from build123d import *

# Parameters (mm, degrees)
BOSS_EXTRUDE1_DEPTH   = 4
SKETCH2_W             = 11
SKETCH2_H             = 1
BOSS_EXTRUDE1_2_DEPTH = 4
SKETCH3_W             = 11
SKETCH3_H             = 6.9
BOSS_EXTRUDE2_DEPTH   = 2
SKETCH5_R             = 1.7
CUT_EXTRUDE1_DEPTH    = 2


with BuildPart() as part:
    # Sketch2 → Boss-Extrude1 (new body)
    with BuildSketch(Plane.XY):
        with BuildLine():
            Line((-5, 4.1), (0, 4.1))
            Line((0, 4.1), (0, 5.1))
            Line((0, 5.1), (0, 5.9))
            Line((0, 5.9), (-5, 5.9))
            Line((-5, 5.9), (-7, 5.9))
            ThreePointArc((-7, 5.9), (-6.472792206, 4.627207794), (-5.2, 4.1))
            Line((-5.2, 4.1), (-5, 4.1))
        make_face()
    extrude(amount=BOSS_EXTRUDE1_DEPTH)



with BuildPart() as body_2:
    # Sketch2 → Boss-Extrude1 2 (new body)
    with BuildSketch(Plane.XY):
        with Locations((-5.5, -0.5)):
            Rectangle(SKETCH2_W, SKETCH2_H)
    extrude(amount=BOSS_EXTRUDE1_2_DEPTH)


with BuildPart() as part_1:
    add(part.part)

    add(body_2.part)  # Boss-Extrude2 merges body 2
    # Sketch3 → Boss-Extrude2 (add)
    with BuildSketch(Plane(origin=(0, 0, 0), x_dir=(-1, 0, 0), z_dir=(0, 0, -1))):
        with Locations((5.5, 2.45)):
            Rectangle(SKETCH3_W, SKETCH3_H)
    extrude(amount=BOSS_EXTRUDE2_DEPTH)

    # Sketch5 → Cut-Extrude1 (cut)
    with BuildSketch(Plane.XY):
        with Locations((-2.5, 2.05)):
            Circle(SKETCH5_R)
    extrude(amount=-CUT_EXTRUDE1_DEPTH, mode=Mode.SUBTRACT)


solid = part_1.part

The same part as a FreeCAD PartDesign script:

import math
import FreeCAD as App
import Part
import Sketcher
from FreeCAD import Vector

doc = App.newDocument("Part")
body = doc.addObject("PartDesign::Body", "Body")

# Sketch on XY plane
sketch1 = body.newObject("Sketcher::SketchObject", "Sketch")
sketch1.AttachmentSupport = (doc.getObject("XY_Plane"), [""])
sketch1.MapMode = "FlatFace"
sketch1.addGeometry(Part.LineSegment(Vector(0, 4.1, 0), Vector(0, 5.9, 0)), False)
sketch1.addGeometry(Part.LineSegment(Vector(0, 5.9, 0), Vector(-7, 5.9, 0)), False)
sketch1.addGeometry(Part.ArcOfCircle(Part.Circle(Vector(-5.2, 5.9, 0), Vector(0, 0, 1), 1.8), math.radians(180), math.radians(270)), False)
sketch1.addGeometry(Part.LineSegment(Vector(-5.2, 4.1, 0), Vector(0, 4.1, 0)), False)
sketch1.addConstraint(Sketcher.Constraint("Coincident", 0, 2, 1, 1))
sketch1.addConstraint(Sketcher.Constraint("Coincident", 1, 2, 2, 1))
sketch1.addConstraint(Sketcher.Constraint("Tangent", 2, 2, 3, 1))
sketch1.addConstraint(Sketcher.Constraint("Coincident", 3, 2, 0, 1))
sketch1.addConstraint(Sketcher.Constraint("Vertical", 0))
sketch1.addConstraint(Sketcher.Constraint("Horizontal", 1))
sketch1.addConstraint(Sketcher.Constraint("Horizontal", 3))
sketch1.addConstraint(Sketcher.Constraint("PointOnObject", 0, 2, -2))
sketch1.addConstraint(Sketcher.Constraint("Horizontal", 2, 3, 0, 2))
sketch1.addConstraint(Sketcher.Constraint("Radius", 2, 1.8))
sketch1.addConstraint(Sketcher.Constraint("DistanceX", 1, 2, 1, 1, 7.0))
sketch1.addConstraint(Sketcher.Constraint("DistanceY", -1, 1, 2, 3, 5.9))
pad1 = body.newObject("PartDesign::Pad", "Pad")
pad1.Profile = sketch1
pad1.Length = 4
body2 = doc.addObject("PartDesign::Body", "Body001")

# Sketch on XY plane
sketch2 = body2.newObject("Sketcher::SketchObject", "Sketch001")
sketch2.AttachmentSupport = (doc.getObject("XY_Plane001"), [""])
sketch2.MapMode = "FlatFace"
sketch2.addGeometry(Part.LineSegment(Vector(-11, 0, 0), Vector(-11, -1, 0)), False)
sketch2.addGeometry(Part.LineSegment(Vector(-11, -1, 0), Vector(0, -1, 0)), False)
sketch2.addGeometry(Part.LineSegment(Vector(0, -1, 0), Vector(0, 0, 0)), False)
sketch2.addGeometry(Part.LineSegment(Vector(0, 0, 0), Vector(-11, 0, 0)), False)
sketch2.addConstraint(Sketcher.Constraint("Coincident", 0, 2, 1, 1))
sketch2.addConstraint(Sketcher.Constraint("Coincident", 1, 2, 2, 1))
sketch2.addConstraint(Sketcher.Constraint("Coincident", 2, 2, 3, 1))
sketch2.addConstraint(Sketcher.Constraint("Coincident", 3, 2, 0, 1))
sketch2.addConstraint(Sketcher.Constraint("Vertical", 0))
sketch2.addConstraint(Sketcher.Constraint("Horizontal", 1))
sketch2.addConstraint(Sketcher.Constraint("Vertical", 2))
sketch2.addConstraint(Sketcher.Constraint("Horizontal", 3))
sketch2.addConstraint(Sketcher.Constraint("Coincident", 2, 2, -1, 1))
sketch2.addConstraint(Sketcher.Constraint("DistanceX", 1, 1, 1, 2, 11.0))
sketch2.addConstraint(Sketcher.Constraint("DistanceY", 0, 2, 0, 1, 1.0))
pad2 = body2.newObject("PartDesign::Pad", "Pad001")
pad2.Profile = sketch2
pad2.Length = 4
body.AllowCompound = True
doc.recompute()

boolean = body.newObject("PartDesign::Boolean", "Boolean")
boolean.Type = "Fuse"
boolean.addObjects([body2])

# Sketch on XY plane
sketch3 = body.newObject("Sketcher::SketchObject", "Sketch002")
sketch3.AttachmentSupport = (doc.getObject("XY_Plane"), [""])
sketch3.MapMode = "FlatFace"
sketch3.addGeometry(Part.LineSegment(Vector(0, 5.9, 0), Vector(0, -1, 0)), False)
sketch3.addGeometry(Part.LineSegment(Vector(0, -1, 0), Vector(-11, -1, 0)), False)
sketch3.addGeometry(Part.LineSegment(Vector(-11, -1, 0), Vector(-11, 5.9, 0)), False)
sketch3.addGeometry(Part.LineSegment(Vector(-11, 5.9, 0), Vector(0, 5.9, 0)), False)
sketch3.addConstraint(Sketcher.Constraint("Coincident", 0, 2, 1, 1))
sketch3.addConstraint(Sketcher.Constraint("Coincident", 1, 2, 2, 1))
sketch3.addConstraint(Sketcher.Constraint("Coincident", 2, 2, 3, 1))
sketch3.addConstraint(Sketcher.Constraint("Coincident", 3, 2, 0, 1))
sketch3.addConstraint(Sketcher.Constraint("Vertical", 0))
sketch3.addConstraint(Sketcher.Constraint("Horizontal", 1))
sketch3.addConstraint(Sketcher.Constraint("Vertical", 2))
sketch3.addConstraint(Sketcher.Constraint("Horizontal", 3))
sketch3.addConstraint(Sketcher.Constraint("PointOnObject", 0, 2, -2))
sketch3.addConstraint(Sketcher.Constraint("DistanceX", 1, 2, 1, 1, 11.0))
sketch3.addConstraint(Sketcher.Constraint("DistanceY", 0, 2, 0, 1, 6.9))
sketch3.addConstraint(Sketcher.Constraint("DistanceY", 0, 2, -1, 1, 1.0))
pad3 = body.newObject("PartDesign::Pad", "Pad002")
pad3.Profile = sketch3
pad3.Length = 2
pad3.Reversed = True

# Sketch on XY plane
sketch4 = body.newObject("Sketcher::SketchObject", "Sketch003")
sketch4.AttachmentSupport = (doc.getObject("XY_Plane"), [""])
sketch4.MapMode = "FlatFace"
sketch4.addGeometry(Part.Circle(Vector(-2.5, 2.05, 0), Vector(0, 0, 1), 1.7), False)
sketch4.addConstraint(Sketcher.Constraint("Diameter", 0, 3.4))
sketch4.addConstraint(Sketcher.Constraint("DistanceX", 0, 3, -1, 1, 2.5))
sketch4.addConstraint(Sketcher.Constraint("DistanceY", -1, 1, 0, 3, 2.05))
pocket1 = body.newObject("PartDesign::Pocket", "Pocket")
pocket1.Profile = sketch4
pocket1.Length = 2

doc.recompute()
